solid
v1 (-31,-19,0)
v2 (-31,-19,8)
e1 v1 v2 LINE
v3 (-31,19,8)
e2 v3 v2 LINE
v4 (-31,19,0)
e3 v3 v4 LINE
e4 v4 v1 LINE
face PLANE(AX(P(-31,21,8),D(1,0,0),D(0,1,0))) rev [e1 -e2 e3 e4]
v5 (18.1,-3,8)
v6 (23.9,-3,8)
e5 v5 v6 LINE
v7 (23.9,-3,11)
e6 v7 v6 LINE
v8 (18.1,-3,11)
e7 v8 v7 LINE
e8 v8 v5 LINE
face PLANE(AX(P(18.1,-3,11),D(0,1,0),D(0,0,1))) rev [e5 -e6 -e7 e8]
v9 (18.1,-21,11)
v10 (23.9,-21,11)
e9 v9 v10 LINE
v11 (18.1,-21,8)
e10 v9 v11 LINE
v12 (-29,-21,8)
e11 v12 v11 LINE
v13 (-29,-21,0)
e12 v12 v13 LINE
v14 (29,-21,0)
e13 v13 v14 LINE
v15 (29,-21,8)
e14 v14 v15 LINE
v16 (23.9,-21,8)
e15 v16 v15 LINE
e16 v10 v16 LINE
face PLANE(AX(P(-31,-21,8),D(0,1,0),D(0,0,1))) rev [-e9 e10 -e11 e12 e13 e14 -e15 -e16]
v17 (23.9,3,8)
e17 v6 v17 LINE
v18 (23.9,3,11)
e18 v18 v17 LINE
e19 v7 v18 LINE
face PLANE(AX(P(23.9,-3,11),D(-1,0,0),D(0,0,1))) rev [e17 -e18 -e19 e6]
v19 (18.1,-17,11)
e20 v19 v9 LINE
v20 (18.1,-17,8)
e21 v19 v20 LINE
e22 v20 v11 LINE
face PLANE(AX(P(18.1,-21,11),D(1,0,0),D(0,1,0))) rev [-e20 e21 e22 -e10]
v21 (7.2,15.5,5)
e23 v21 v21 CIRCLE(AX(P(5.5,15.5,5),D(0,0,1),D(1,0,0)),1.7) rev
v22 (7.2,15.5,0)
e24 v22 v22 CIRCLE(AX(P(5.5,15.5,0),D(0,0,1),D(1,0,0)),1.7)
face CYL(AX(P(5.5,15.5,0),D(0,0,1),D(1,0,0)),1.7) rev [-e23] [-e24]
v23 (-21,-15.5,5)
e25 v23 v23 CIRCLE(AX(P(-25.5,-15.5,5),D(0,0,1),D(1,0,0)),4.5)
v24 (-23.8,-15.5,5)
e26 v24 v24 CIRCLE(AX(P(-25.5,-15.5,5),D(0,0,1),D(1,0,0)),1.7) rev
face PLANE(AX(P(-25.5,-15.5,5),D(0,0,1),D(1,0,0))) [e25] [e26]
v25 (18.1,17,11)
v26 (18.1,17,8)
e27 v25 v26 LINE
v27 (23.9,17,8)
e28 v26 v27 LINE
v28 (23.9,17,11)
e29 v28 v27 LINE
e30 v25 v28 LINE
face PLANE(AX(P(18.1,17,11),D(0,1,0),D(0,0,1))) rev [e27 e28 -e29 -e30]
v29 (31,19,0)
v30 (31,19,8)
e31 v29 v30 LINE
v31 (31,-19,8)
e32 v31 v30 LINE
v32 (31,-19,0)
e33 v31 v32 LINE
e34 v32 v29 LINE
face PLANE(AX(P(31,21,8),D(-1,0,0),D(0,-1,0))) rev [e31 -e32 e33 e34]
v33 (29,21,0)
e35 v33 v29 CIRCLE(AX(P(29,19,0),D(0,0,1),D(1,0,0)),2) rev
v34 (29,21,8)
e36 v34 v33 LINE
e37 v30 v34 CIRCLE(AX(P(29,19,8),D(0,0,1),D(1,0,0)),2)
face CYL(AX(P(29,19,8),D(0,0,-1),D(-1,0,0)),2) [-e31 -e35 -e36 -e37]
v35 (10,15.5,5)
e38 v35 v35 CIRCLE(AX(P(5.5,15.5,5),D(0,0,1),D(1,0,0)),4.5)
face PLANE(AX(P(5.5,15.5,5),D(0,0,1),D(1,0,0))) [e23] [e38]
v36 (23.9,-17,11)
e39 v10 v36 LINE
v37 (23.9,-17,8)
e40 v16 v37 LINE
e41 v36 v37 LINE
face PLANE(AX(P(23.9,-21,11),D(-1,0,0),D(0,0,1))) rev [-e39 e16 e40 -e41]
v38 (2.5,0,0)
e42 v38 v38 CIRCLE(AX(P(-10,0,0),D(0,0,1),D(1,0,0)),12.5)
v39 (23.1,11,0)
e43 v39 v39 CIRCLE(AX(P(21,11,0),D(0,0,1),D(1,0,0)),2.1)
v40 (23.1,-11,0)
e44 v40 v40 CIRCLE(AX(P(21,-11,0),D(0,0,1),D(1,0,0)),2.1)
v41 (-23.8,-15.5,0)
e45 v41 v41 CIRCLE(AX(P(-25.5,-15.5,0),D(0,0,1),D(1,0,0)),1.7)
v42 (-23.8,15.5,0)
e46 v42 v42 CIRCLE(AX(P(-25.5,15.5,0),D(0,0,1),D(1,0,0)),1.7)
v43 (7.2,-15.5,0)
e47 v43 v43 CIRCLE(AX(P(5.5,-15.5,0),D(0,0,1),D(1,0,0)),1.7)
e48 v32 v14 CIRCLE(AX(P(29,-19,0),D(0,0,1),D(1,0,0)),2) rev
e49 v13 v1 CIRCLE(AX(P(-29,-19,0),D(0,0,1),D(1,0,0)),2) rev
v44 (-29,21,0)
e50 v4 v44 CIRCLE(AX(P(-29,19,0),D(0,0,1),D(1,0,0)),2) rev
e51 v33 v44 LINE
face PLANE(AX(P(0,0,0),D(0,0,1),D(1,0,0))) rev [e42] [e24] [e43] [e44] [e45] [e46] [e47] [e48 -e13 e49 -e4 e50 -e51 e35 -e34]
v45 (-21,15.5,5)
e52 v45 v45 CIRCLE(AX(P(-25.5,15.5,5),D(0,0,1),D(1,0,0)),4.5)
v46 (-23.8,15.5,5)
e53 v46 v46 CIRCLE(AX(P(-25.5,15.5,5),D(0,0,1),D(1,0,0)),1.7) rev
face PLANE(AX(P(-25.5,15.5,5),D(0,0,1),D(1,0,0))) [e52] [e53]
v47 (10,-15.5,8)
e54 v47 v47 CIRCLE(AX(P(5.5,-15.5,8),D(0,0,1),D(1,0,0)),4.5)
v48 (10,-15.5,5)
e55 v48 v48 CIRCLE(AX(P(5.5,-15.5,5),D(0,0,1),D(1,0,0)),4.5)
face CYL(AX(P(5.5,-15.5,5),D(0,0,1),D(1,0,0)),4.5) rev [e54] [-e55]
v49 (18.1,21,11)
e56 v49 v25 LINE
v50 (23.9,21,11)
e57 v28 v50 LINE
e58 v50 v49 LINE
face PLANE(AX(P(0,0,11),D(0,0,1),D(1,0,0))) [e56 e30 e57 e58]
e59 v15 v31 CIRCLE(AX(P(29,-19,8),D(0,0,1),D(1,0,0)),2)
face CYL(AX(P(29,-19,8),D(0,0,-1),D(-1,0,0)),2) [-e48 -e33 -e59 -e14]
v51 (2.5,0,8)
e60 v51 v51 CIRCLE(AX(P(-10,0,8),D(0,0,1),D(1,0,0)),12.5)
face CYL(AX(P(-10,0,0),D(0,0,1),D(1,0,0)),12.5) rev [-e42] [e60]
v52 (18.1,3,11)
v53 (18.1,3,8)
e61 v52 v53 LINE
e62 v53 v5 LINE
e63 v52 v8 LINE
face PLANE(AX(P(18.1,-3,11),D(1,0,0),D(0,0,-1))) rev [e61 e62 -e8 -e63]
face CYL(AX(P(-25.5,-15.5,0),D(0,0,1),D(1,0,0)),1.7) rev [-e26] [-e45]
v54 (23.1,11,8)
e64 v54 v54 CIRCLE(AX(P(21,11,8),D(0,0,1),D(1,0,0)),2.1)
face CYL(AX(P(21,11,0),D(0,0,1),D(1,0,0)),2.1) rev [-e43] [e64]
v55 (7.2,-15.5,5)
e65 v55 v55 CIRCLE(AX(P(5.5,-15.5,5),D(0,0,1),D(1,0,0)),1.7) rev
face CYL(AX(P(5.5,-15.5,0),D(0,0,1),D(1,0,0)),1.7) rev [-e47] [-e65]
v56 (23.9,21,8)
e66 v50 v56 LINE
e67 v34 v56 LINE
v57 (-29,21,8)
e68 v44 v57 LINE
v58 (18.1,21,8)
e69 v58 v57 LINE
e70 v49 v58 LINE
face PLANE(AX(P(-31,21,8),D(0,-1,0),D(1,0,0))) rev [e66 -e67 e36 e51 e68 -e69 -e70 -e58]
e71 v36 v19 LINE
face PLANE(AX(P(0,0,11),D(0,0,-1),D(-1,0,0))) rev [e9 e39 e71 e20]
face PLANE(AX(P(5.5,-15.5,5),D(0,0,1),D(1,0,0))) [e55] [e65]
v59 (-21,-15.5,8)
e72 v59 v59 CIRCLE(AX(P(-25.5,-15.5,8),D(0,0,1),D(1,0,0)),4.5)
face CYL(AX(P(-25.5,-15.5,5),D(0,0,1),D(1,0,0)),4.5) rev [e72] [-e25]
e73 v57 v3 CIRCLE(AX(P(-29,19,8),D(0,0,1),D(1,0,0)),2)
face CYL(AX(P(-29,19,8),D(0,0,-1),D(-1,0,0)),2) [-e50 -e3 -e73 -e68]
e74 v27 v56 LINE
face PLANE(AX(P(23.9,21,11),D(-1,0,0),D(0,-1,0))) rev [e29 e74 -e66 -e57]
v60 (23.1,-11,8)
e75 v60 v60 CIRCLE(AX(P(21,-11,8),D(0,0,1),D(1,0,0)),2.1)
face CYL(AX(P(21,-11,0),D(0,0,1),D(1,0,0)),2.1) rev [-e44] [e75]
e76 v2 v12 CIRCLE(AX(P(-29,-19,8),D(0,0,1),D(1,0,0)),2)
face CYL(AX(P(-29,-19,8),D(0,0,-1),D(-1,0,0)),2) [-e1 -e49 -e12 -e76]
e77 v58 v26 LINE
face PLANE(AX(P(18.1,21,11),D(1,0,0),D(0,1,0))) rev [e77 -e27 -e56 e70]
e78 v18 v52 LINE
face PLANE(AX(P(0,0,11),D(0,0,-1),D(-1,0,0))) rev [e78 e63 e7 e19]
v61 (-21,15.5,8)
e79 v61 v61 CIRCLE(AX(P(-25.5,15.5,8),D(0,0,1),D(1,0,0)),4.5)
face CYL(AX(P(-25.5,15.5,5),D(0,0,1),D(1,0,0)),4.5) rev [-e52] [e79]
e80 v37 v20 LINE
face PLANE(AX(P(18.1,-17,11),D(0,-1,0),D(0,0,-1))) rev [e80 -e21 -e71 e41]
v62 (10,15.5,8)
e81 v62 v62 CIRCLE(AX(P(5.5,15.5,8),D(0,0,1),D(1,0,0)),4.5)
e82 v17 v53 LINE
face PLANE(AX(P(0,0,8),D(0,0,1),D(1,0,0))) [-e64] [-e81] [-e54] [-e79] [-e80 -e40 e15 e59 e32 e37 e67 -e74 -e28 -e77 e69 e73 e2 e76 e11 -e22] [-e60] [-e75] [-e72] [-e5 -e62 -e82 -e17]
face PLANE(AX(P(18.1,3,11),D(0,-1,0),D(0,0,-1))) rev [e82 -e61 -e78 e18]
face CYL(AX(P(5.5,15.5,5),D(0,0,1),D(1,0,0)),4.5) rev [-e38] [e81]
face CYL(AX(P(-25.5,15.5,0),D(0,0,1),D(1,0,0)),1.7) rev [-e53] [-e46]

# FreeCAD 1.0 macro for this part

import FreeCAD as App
import Part
import Sketcher
from FreeCAD import Vector
Q = App.Units.Quantity


def edges_at(feature, points):
    """Names of the edges that pass closest to the given points."""
    edges = feature.Shape.Edges
    near = lambda p: min(range(len(edges)), key=lambda i: edges[i].distToShape(Part.Vertex(*p))[0])
    return sorted({f"Edge{near(p) + 1}" for p in points})

doc = App.newDocument("Part")
body = doc.addObject("PartDesign::Body", "Body")

sketch1 = doc.addObject("Sketcher::SketchObject", "Sketch")
body.addObject(sketch1)
sketch1.AttachmentSupport = (doc.XY_Plane, [""])
sketch1.MapMode = "FlatFace"
sketch1.addGeometry(Part.LineSegment(Vector(-31, 21, 0), Vector(-31, -21, 0)), False)
sketch1.addGeometry(Part.LineSegment(Vector(-31, -21, 0), Vector(31, -21, 0)), False)
sketch1.addGeometry(Part.LineSegment(Vector(31, -21, 0), Vector(31, 21, 0)), False)
sketch1.addGeometry(Part.LineSegment(Vector(31, 21, 0), Vector(-31, 21, 0)), False)
sketch1.addConstraint(Sketcher.Constraint("Coincident", 0, 2, 1, 1))
sketch1.addConstraint(Sketcher.Constraint("Coincident", 1, 2, 2, 1))
sketch1.addConstraint(Sketcher.Constraint("Coincident", 2, 2, 3, 1))
sketch1.addConstraint(Sketcher.Constraint("Coincident", 3, 2, 0, 1))
sketch1.addConstraint(Sketcher.Constraint("Vertical", 0))
sketch1.addConstraint(Sketcher.Constraint("Horizontal", 1))
sketch1.addConstraint(Sketcher.Constraint("Vertical", 2))
sketch1.addConstraint(Sketcher.Constraint("Horizontal", 3))
sketch1.addConstraint(Sketcher.Constraint("Symmetric", 0, 2, 2, 2, -1, 1))
sketch1.addConstraint(Sketcher.Constraint("DistanceX", 1, 1, 1, 2, Q("62 mm")))
sketch1.addConstraint(Sketcher.Constraint("DistanceY", 0, 2, 0, 1, Q("42 mm")))
pad1 = doc.addObject("PartDesign::Pad", "Pad")
body.addObject(pad1)
pad1.Profile = sketch1
pad1.Length = 8

sketch2 = doc.addObject("Sketcher::SketchObject", "Sketch001")
body.addObject(sketch2)
sketch2.AttachmentSupport = (doc.XY_Plane, [""])
sketch2.MapMode = "FlatFace"
sketch2.AttachmentOffset = App.Placement(Vector(0, 0, 8), App.Rotation())
sketch2.addGeometry(Part.Circle(Vector(21, 11, 0), Vector(0, 0, 1), 2.1), False)
sketch2.addGeometry(Part.Circle(Vector(21, -11, 0), Vector(0, 0, 1), 2.1), False)
sketch2.addGeometry(Part.Circle(Vector(-10, 0, 0), Vector(0, 0, 1), 12.5), False)
sketch2.addGeometry(Part.Circle(Vector(-25.5, 15.5, 0), Vector(0, 0, 1), 1.7), False)
sketch2.addGeometry(Part.Circle(Vector(5.5, 15.5, 0), Vector(0, 0, 1), 1.7), False)
sketch2.addGeometry(Part.Circle(Vector(5.5, -15.5, 0), Vector(0, 0, 1), 1.7), False)
sketch2.addGeometry(Part.Circle(Vector(-25.5, -15.5, 0), Vector(0, 0, 1), 1.7), False)
sketch2.addConstraint(Sketcher.Constraint("Equal", 0, 1))
sketch2.addConstraint(Sketcher.Constraint("Equal", 3, 4))
sketch2.addConstraint(Sketcher.Constraint("Equal", 4, 5))
sketch2.addConstraint(Sketcher.Constraint("Equal", 5, 6))
sketch2.addConstraint(Sketcher.Constraint("Symmetric", 0, 3, 1, 3, -1))
sketch2.addConstraint(Sketcher.Constraint("Symmetric", 4, 3, 5, 3, -1))
sketch2.addConstraint(Sketcher.Constraint("Symmetric", 3, 3, 6, 3, -1))
sketch2.addConstraint(Sketcher.Constraint("PointOnObject", 2, 3, -1))
sketch2.addConstraint(Sketcher.Constraint("Horizontal", 3, 3, 4, 3))
sketch2.addConstraint(Sketcher.Constraint("Diameter", 2, Q("25 mm")))
sketch2.addConstraint(Sketcher.Constraint("Diameter", 0, Q("4.2 mm")))
sketch2.addConstraint(Sketcher.Constraint("Diameter", 3, Q("3.4 mm")))
sketch2.addConstraint(Sketcher.Constraint("DistanceX", -1, 1, 0, 3, Q("21 mm")))
sketch2.addConstraint(Sketcher.Constraint("DistanceY", -1, 1, 0, 3, Q("11 mm")))
sketch2.addConstraint(Sketcher.Constraint("DistanceX", 2, 3, -1, 1, Q("10 mm")))
sketch2.addConstraint(Sketcher.Constraint("DistanceX", 3, 3, 4, 3, Q("31 mm")))
sketch2.addConstraint(Sketcher.Constraint("DistanceY", 5, 3, 4, 3, Q("31 mm")))
sketch2.addConstraint(Sketcher.Constraint("DistanceX", 3, 3, -1, 1, Q("25.5 mm")))
pocket1 = doc.addObject("PartDesign::Pocket", "Pocket")
body.addObject(pocket1)
pocket1.Profile = sketch2
pocket1.Type = "ThroughAll"

sketch3 = doc.addObject("Sketcher::SketchObject", "Sketch002")
body.addObject(sketch3)
sketch3.AttachmentSupport = (doc.XY_Plane, [""])
sketch3.MapMode = "FlatFace"
sketch3.AttachmentOffset = App.Placement(Vector(0, 0, 8), App.Rotation())
sketch3.addGeometry(Part.LineSegment(Vector(18.1, 21, 0), Vector(18.1, 17, 0)), False)
sketch3.addGeometry(Part.LineSegment(Vector(18.1, 17, 0), Vector(23.9, 17, 0)), False)
sketch3.addGeometry(Part.LineSegment(Vector(23.9, 17, 0), Vector(23.9, 21, 0)), False)
sketch3.addGeometry(Part.LineSegment(Vector(23.9, 21, 0), Vector(18.1, 21, 0)), False)
sketch3.addGeometry(Part.LineSegment(Vector(18.1, -17, 0), Vector(18.1, -21, 0)), False)
sketch3.addGeometry(Part.LineSegment(Vector(18.1, -21, 0), Vector(23.9, -21, 0)), False)
sketch3.addGeometry(Part.LineSegment(Vector(23.9, -21, 0), Vector(23.9, -17, 0)), False)
sketch3.addGeometry(Part.LineSegment(Vector(23.9, -17, 0), Vector(18.1, -17, 0)), False)
sketch3.addGeometry(Part.LineSegment(Vector(18.1, 3, 0), Vector(18.1, -3, 0)), False)
sketch3.addGeometry(Part.LineSegment(Vector(18.1, -3, 0), Vector(23.9, -3, 0)), False)
sketch3.addGeometry(Part.LineSegment(Vector(23.9, -3, 0), Vector(23.9, 3, 0)), False)
sketch3.addGeometry(Part.LineSegment(Vector(23.9, 3, 0), Vector(18.1, 3, 0)), False)
sketch3.addConstraint(Sketcher.Constraint("Coincident", 0, 2, 1, 1))
sketch3.addConstraint(Sketcher.Constraint("Coincident", 1, 2, 2, 1))
sketch3.addConstraint(Sketcher.Constraint("Coincident", 2, 2, 3, 1))
sketch3.addConstraint(Sketcher.Constraint("Coincident", 3, 2, 0, 1))
sketch3.addConstraint(Sketcher.Constraint("Coincident", 4, 2, 5, 1))
sketch3.addConstraint(Sketcher.Constraint("Coincident", 5, 2, 6, 1))
sketch3.addConstraint(Sketcher.Constraint("Coincident", 6, 2, 7, 1))
sketch3.addConstraint(Sketcher.Constraint("Coincident", 7, 2, 4, 1))
sketch3.addConstraint(Sketcher.Constraint("Coincident", 8, 2, 9, 1))
sketch3.addConstraint(Sketcher.Constraint("Coincident", 9, 2, 10, 1))
sketch3.addConstraint(Sketcher.Constraint("Coincident", 10, 2, 11, 1))
sketch3.addConstraint(Sketcher.Constraint("Coincident", 11, 2, 8, 1))
sketch3.addConstraint(Sketcher.Constraint("Vertical", 0))
sketch3.addConstraint(Sketcher.Constraint("Horizontal", 1))
sketch3.addConstraint(Sketcher.Constraint("Vertical", 2))
sketch3.addConstraint(Sketcher.Constraint("Horizontal", 3))
sketch3.addConstraint(Sketcher.Constraint("Vertical", 4))
sketch3.addConstraint(Sketcher.Constraint("Horizontal", 5))
sketch3.addConstraint(Sketcher.Constraint("Vertical", 6))
sketch3.addConstraint(Sketcher.Constraint("Horizontal", 7))
sketch3.addConstraint(Sketcher.Constraint("Vertical", 8))
sketch3.addConstraint(Sketcher.Constraint("Horizontal", 9))
sketch3.addConstraint(Sketcher.Constraint("Vertical", 10))
sketch3.addConstraint(Sketcher.Constraint("Horizontal", 11))
sketch3.addConstraint(Sketcher.Constraint("Symmetric", 3, 2, 4, 2, -1))
sketch3.addConstraint(Sketcher.Constraint("Symmetric", 1, 2, 6, 2, -1))
sketch3.addConstraint(Sketcher.Constraint("Vertical", 7, 2, 8, 2))
sketch3.addConstraint(Sketcher.Constraint("Vertical", 6, 2, 9, 2))
sketch3.addConstraint(Sketcher.Constraint("DistanceY", 0, 2, 0, 1, Q("4 mm")))
sketch3.addConstraint(Sketcher.Constraint("DistanceY", 8, 2, 8, 1, Q("6 mm")))
sketch3.addConstraint(Sketcher.Constraint("DistanceX", 1, 1, 1, 2, Q("5.8 mm")))
sketch3.addConstraint(Sketcher.Constraint("DistanceY", -1, 1, 0, 2, Q("17 mm")))
sketch3.addConstraint(Sketcher.Constraint("DistanceY", 8, 2, -1, 1, Q("3 mm")))
sketch3.addConstraint(Sketcher.Constraint("DistanceX", -1, 1, 0, 2, Q("18.1 mm")))
pad2 = doc.addObject("PartDesign::Pad", "Pad001")
body.addObject(pad2)
pad2.Profile = sketch3
pad2.Length = 3
doc.recompute()

fillet = doc.addObject("PartDesign::Fillet", "Fillet")
body.addObject(fillet)
fillet.Base = (pad2, edges_at(pad2, [
    (-31, 21, 4),
    (-31, -21, 4),
    (31, 21, 4),
    (31, -21, 4),
]))
fillet.Radius = 2

sketch4 = doc.addObject("Sketcher::SketchObject", "Sketch003")
body.addObject(sketch4)
sketch4.AttachmentSupport = (doc.XY_Plane, [""])
sketch4.MapMode = "FlatFace"
sketch4.AttachmentOffset = App.Placement(Vector(0, 0, 8), App.Rotation())
sketch4.addGeometry(Part.Circle(Vector(-25.5, 15.5, 0), Vector(0, 0, 1), 4.5), False)
sketch4.addGeometry(Part.Circle(Vector(-25.5, -15.5, 0), Vector(0, 0, 1), 4.5), False)
sketch4.addGeometry(Part.Circle(Vector(5.5, -15.5, 0), Vector(0, 0, 1), 4.5), False)
sketch4.addGeometry(Part.Circle(Vector(5.5, 15.5, 0), Vector(0, 0, 1), 4.5), False)
sketch4.addConstraint(Sketcher.Constraint("Equal", 0, 1))
sketch4.addConstraint(Sketcher.Constraint("Equal", 1, 2))
sketch4.addConstraint(Sketcher.Constraint("Equal", 2, 3))
sketch4.addConstraint(Sketcher.Constraint("Symmetric", 0, 3, 1, 3, -1))
sketch4.addConstraint(Sketcher.Constraint("Symmetric", 2, 3, 3, 3, -1))
sketch4.addConstraint(Sketcher.Constraint("Horizontal", 1, 3, 2, 3))
sketch4.addConstraint(Sketcher.Constraint("Diameter", 0, Q("9 mm")))
sketch4.addConstraint(Sketcher.Constraint("DistanceY", 1, 3, 0, 3, Q("31 mm")))
sketch4.addConstraint(Sketcher.Constraint("DistanceX", 1, 3, 2, 3, Q("31 mm")))
sketch4.addConstraint(Sketcher.Constraint("DistanceX", 0, 3, -1, 1, Q("25.5 mm")))
pocket2 = doc.addObject("PartDesign::Pocket", "Pocket001")
body.addObject(pocket2)
pocket2.Profile = sketch4
pocket2.Length = 3

doc.recompute()
